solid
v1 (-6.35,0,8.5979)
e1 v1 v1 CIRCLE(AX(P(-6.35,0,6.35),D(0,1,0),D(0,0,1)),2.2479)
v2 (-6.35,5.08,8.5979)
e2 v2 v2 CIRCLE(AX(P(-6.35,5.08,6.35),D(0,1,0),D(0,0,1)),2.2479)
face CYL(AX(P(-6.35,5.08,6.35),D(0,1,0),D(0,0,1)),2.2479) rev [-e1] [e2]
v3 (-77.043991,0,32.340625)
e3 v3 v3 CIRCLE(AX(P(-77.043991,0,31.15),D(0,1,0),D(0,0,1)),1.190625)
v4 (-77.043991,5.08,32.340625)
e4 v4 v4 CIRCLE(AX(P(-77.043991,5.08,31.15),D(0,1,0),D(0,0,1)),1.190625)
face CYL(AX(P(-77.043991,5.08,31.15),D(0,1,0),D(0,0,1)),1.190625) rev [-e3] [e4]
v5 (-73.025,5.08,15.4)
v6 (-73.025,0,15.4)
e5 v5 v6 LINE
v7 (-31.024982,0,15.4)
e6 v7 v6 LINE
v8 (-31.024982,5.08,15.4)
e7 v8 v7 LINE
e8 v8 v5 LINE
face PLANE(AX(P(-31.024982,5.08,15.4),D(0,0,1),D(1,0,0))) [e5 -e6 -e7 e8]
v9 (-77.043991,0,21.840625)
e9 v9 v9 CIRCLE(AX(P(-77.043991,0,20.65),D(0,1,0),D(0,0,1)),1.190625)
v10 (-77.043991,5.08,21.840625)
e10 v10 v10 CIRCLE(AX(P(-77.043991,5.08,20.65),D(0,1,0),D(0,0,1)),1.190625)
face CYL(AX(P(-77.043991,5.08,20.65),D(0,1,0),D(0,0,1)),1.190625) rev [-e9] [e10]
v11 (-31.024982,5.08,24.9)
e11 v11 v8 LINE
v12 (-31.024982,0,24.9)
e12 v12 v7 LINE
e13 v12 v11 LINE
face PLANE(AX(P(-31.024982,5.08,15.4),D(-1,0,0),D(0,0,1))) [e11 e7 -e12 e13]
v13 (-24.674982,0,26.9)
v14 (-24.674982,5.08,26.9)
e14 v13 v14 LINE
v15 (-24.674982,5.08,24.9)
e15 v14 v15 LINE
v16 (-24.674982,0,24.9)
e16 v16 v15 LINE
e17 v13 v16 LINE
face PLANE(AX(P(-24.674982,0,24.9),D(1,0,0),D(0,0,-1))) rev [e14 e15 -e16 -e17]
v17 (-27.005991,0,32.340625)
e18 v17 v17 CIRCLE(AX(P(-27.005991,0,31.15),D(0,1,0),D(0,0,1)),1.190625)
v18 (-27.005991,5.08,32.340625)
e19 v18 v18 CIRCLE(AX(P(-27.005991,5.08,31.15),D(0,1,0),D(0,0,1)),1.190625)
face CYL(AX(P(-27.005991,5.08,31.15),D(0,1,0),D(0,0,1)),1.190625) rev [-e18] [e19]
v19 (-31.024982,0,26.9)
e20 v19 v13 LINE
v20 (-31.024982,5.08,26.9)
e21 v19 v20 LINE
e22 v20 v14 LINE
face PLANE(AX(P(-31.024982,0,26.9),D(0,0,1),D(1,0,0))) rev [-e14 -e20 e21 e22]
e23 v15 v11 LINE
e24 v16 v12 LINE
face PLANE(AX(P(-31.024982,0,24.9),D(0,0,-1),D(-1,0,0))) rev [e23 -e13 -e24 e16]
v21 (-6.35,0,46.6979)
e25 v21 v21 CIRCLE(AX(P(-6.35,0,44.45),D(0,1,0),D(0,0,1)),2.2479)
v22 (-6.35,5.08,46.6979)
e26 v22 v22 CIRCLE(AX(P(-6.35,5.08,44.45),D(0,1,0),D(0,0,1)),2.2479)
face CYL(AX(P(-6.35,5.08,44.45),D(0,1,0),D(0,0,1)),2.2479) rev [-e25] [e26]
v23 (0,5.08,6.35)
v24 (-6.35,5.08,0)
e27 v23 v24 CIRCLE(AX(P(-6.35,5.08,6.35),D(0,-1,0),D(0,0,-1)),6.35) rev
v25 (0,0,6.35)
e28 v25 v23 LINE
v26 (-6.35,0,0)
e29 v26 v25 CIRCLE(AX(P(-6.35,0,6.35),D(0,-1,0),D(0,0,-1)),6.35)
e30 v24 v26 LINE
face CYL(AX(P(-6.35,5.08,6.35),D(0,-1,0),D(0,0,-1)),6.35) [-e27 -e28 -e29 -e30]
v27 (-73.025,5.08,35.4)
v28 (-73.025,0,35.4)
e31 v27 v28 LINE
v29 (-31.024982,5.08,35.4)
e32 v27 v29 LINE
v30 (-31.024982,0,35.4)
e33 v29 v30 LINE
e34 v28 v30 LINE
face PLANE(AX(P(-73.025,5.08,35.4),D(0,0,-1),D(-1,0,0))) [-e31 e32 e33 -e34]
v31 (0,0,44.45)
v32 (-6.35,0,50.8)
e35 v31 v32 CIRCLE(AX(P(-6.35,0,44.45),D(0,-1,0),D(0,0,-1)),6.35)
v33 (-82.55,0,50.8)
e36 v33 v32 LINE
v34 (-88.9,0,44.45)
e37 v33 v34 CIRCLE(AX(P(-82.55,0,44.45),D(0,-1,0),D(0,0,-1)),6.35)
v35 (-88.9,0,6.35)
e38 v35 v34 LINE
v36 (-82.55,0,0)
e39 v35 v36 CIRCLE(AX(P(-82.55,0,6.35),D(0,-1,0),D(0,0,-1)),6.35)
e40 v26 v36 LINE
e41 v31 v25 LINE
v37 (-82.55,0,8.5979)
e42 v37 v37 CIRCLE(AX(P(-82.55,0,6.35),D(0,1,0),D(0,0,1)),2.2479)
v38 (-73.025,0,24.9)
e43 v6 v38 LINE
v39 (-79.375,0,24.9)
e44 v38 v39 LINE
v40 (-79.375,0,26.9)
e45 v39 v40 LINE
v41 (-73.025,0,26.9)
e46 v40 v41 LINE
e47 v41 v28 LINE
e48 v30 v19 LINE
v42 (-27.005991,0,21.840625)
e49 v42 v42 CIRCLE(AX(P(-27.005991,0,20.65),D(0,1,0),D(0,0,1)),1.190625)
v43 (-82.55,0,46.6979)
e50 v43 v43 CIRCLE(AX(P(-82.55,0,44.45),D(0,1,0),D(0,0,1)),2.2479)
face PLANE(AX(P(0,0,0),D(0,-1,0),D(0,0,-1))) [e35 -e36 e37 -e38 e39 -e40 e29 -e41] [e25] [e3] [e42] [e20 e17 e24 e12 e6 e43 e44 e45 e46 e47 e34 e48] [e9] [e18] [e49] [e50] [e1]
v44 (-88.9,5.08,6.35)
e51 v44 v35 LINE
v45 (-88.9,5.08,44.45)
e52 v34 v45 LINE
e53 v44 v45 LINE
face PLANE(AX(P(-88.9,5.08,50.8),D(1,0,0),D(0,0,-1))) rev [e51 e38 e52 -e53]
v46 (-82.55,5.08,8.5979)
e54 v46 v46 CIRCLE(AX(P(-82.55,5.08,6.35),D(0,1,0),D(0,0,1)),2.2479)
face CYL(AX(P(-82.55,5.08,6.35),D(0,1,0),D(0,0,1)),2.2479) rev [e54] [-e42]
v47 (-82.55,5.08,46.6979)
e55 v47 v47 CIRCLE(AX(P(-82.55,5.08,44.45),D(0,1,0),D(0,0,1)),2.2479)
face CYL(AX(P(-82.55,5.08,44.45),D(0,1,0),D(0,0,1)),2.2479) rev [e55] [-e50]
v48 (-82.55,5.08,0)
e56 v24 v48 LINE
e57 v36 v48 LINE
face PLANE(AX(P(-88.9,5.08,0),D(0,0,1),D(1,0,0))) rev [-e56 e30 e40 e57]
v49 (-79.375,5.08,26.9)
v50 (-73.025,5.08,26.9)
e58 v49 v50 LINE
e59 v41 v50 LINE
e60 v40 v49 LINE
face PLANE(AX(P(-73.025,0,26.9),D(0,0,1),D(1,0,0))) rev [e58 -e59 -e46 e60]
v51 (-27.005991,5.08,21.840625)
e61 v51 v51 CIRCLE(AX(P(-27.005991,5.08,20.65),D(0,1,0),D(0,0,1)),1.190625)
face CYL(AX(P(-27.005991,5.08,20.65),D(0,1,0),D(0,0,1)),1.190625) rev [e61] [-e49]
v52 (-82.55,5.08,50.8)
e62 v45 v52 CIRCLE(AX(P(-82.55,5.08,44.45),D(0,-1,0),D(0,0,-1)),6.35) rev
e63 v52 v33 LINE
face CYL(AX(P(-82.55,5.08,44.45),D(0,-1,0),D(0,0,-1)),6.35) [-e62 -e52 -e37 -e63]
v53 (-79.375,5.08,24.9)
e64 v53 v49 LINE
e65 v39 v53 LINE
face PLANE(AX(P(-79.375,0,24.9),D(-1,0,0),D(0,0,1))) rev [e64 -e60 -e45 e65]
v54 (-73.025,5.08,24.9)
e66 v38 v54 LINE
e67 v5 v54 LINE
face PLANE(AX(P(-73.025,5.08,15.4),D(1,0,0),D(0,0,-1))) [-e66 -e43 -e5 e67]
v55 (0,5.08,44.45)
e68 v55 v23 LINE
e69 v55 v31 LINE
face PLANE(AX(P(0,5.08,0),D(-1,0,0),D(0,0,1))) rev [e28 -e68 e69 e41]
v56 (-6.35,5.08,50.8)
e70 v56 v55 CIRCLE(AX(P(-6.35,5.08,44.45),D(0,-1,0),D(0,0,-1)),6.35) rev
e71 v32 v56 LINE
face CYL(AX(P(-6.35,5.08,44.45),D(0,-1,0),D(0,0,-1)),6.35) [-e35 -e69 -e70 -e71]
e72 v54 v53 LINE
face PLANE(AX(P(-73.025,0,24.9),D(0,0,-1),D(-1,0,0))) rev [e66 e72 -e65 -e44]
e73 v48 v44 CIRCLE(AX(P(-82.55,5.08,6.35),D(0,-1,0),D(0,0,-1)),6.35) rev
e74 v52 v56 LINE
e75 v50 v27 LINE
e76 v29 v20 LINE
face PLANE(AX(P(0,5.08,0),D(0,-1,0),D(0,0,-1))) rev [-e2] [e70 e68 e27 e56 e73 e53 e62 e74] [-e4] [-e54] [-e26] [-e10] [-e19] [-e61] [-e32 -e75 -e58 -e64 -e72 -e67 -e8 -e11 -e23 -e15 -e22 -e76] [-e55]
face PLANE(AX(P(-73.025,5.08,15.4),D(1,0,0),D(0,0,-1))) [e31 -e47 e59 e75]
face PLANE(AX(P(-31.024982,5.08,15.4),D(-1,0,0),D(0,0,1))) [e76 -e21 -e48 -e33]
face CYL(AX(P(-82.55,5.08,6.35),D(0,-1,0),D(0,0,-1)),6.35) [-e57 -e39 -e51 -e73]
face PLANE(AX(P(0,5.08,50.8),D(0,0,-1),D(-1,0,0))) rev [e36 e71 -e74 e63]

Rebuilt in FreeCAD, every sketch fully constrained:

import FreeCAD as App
import Part
import Sketcher
from FreeCAD import Vector
Q = App.Units.Quantity


def edges_at(feature, points):
    """Names of the edges that pass closest to the given points."""
    edges = feature.Shape.Edges
    near = lambda p: min(range(len(edges)), key=lambda i: edges[i].distToShape(Part.Vertex(*p))[0])
    return sorted({f"Edge{near(p) + 1}" for p in points})


def add_polygon(sketch, points):
    """Adds a closed chain of lines whose ends are joined by coincident constraints."""
    first, n = sketch.GeometryCount, len(points)
    for a, b in zip(points, points[1:] + points[:1]):
        sketch.addGeometry(Part.LineSegment(App.Vector(*a, 0), App.Vector(*b, 0)), False)
    for i in range(n):
        sketch.addConstraint(Sketcher.Constraint("Coincident", first + i, 2, first + (i + 1) % n, 1))

doc = App.newDocument("Part")
body = doc.addObject("PartDesign::Body", "Body")

# Sketch on XZ plane
sketch1 = doc.addObject("Sketcher::SketchObject", "Sketch")
body.addObject(sketch1)
sketch1.AttachmentSupport = (doc.XZ_Plane, [""])
sketch1.MapMode = "FlatFace"
add_polygon(sketch1, [(-88.9, 0), (-88.9, 50.8), (0, 50.8), (0, 0)])  # lines 0-3
add_polygon(sketch1, [(-31.024982, 35.4), (-73.025, 35.4), (-73.025, 15.4), (-31.024982, 15.4)])  # lines 4-7
sketch1.addConstraint([
    Sketcher.Constraint("Vertical", 0),
    Sketcher.Constraint("Horizontal", 1),
    Sketcher.Constraint("Vertical", 2),
    Sketcher.Constraint("Horizontal", 3),
    Sketcher.Constraint("Horizontal", 4),
    Sketcher.Constraint("Vertical", 5),
    Sketcher.Constraint("Horizontal", 6),
    Sketcher.Constraint("Vertical", 7),
    Sketcher.Constraint("Coincident", 2, 2, -1, 1),
    Sketcher.Constraint("DistanceY", 0, 1, 0, 2, Q("2 in")),
    Sketcher.Constraint("DistanceX", 1, 1, 1, 2, Q("3.5 in")),
    Sketcher.Constraint("DistanceX", 4, 2, -1, 1, Q("2.875 in")),
    Sketcher.Constraint("DistanceY", 5, 2, 5, 1, Q("20 mm")),
    Sketcher.Constraint("DistanceY", -1, 1, 4, 2, Q("35.4 mm")),
    Sketcher.Constraint("DistanceX", 4, 2, 4, 1, Q("42.000018 mm")),
])
pad1 = doc.addObject("PartDesign::Pad", "Pad")
body.addObject(pad1)
pad1.Profile = sketch1
pad1.Length = Q("0.2 in")
pad1.Reversed = True

# Sketch on XZ plane
sketch2 = doc.addObject("Sketcher::SketchObject", "Sketch001")
body.addObject(sketch2)
sketch2.AttachmentSupport = (doc.XZ_Plane, [""])
sketch2.MapMode = "FlatFace"
sketch2.AttachmentOffset = App.Placement(Vector(0, 0, -0.2 * 25.4), App.Rotation())
sketch2.addGeometry([
    Part.Circle(Vector(-77.043991, 31.15, 0), Vector(0, 0, 1), 1.190625),
    Part.Circle(Vector(-77.043991, 20.65, 0), Vector(0, 0, 1), 1.190625),
    Part.Circle(Vector(-27.005991, 31.15, 0), Vector(0, 0, 1), 1.190625),
    Part.Circle(Vector(-27.005991, 20.65, 0), Vector(0, 0, 1), 1.190625),
], False)
sketch2.addConstraint([
    Sketcher.Constraint("Equal", 0, 1),
    Sketcher.Constraint("Equal", 1, 2),
    Sketcher.Constraint("Equal", 2, 3),
    Sketcher.Constraint("Horizontal", 0, 3, 2, 3),
    Sketcher.Constraint("Horizontal", 1, 3, 3, 3),
    Sketcher.Constraint("Vertical", 0, 3, 1, 3),
    Sketcher.Constraint("Vertical", 2, 3, 3, 3),
    Sketcher.Constraint("Diameter", 0, Q("0.09375 in")),
    Sketcher.Constraint("DistanceX", 0, 3, 2, 3, Q("1.97 in")),
    Sketcher.Constraint("DistanceY", -1, 1, 0, 3, Q("31.15 mm")),
    Sketcher.Constraint("DistanceY", -1, 1, 1, 3, Q("20.65 mm")),
    Sketcher.Constraint("DistanceX", 0, 3, -1, 1, Q("77.043991 mm")),
])
doc.recompute()
hole = doc.addObject("PartDesign::Hole", "Hole")
body.addObject(hole)
hole.Profile = sketch2
hole.ThreadType = "None"
hole.Diameter = Q("0.09375 in")
hole.DepthType = "ThroughAll"
hole.Reversed = True

# Sketch on XZ plane
sketch3 = doc.addObject("Sketcher::SketchObject", "Sketch002")
body.addObject(sketch3)
sketch3.AttachmentSupport = (doc.XZ_Plane, [""])
sketch3.MapMode = "FlatFace"
sketch3.AttachmentOffset = App.Placement(Vector(0, 0, -0.2 * 25.4), App.Rotation())
add_polygon(sketch3, [(-79.375, 24.9), (-79.375, 26.9), (-73.025, 26.9), (-73.025, 24.9)])  # lines 0-3
add_polygon(sketch3, [(-31.024982, 24.9), (-31.024982, 26.9), (-24.674982, 26.9), (-24.674982, 24.9)])  # lines 4-7
sketch3.addConstraint([
    Sketcher.Constraint("Vertical", 0),
    Sketcher.Constraint("Horizontal", 1),
    Sketcher.Constraint("Vertical", 2),
    Sketcher.Constraint("Horizontal", 3),
    Sketcher.Constraint("Vertical", 4),
    Sketcher.Constraint("Horizontal", 5),
    Sketcher.Constraint("Vertical", 6),
    Sketcher.Constraint("Horizontal", 7),
    Sketcher.Constraint("Horizontal", 1, 2, 4, 2),
    Sketcher.Constraint("Horizontal", 3, 2, 6, 2),
    Sketcher.Constraint("Equal", 3, 5),
    Sketcher.Constraint("DistanceX", 1, 1, 1, 2, Q("0.25 in")),
    Sketcher.Constraint("DistanceX", 0, 2, -1, 1, Q("3.125 in")),
    Sketcher.Constraint("DistanceY", 0, 1, 0, 2, Q("2 mm")),
    Sketcher.Constraint("DistanceY", -1, 1, 0, 2, Q("26.9 mm")),
    Sketcher.Constraint("DistanceX", 4, 2, -1, 1, Q("31.024982 mm")),
])
pocket1 = doc.addObject("PartDesign::Pocket", "Pocket")
body.addObject(pocket1)
pocket1.Profile = sketch3
pocket1.Type = "ThroughAll"
pocket1.Reversed = True
doc.recompute()

fillet = doc.addObject("PartDesign::Fillet", "Fillet")
body.addObject(fillet)
fillet.Base = (pocket1, edges_at(pocket1, [
    (-88.9, 2.54, 0),
    (0, 2.54, 0),
    (0, 2.54, 50.8),
    (-88.9, 2.54, 50.8),
]))
fillet.Radius = Q("0.25 in")

# Sketch on XZ plane
sketch4 = doc.addObject("Sketcher::SketchObject", "Sketch003")
body.addObject(sketch4)
sketch4.AttachmentSupport = (doc.XZ_Plane, [""])
sketch4.MapMode = "FlatFace"
sketch4.AttachmentOffset = App.Placement(Vector(0, 0, -0.2 * 25.4), App.Rotation())
sketch4.addGeometry([
    Part.Circle(Vector(-82.55, 6.35, 0), Vector(0, 0, 1), 2.2479),
    Part.Circle(Vector(-82.55, 44.45, 0), Vector(0, 0, 1), 2.2479),
    Part.Circle(Vector(-6.35, 6.35, 0), Vector(0, 0, 1), 2.2479),
    Part.Circle(Vector(-6.35, 44.45, 0), Vector(0, 0, 1), 2.2479),
], False)
sketch4.addConstraint([
    Sketcher.Constraint("Equal", 0, 1),
    Sketcher.Constraint("Equal", 1, 2),
    Sketcher.Constraint("Equal", 2, 3),
    Sketcher.Constraint("Horizontal", 0, 3, 2, 3),
    Sketcher.Constraint("Horizontal", 1, 3, 3, 3),
    Sketcher.Constraint("Vertical", 0, 3, 1, 3),
    Sketcher.Constraint("Vertical", 2, 3, 3, 3),
    Sketcher.Constraint("Diameter", 0, Q("0.177 in")),
    Sketcher.Constraint("DistanceX", 0, 3, 2, 3, Q("3 in")),
    Sketcher.Constraint("DistanceY", 0, 3, 1, 3, Q("1.5 in")),
    Sketcher.Constraint("DistanceX", 0, 3, -1, 1, Q("3.25 in")),
    Sketcher.Constraint("DistanceY", -1, 1, 0, 3, Q("0.25 in")),
])
doc.recompute()
hole2 = doc.addObject("PartDesign::Hole", "Hole001")
body.addObject(hole2)
hole2.Profile = sketch4
hole2.ThreadType = "None"
hole2.Diameter = Q("0.177 in")
hole2.DepthType = "ThroughAll"
hole2.Reversed = True

doc.recompute()
